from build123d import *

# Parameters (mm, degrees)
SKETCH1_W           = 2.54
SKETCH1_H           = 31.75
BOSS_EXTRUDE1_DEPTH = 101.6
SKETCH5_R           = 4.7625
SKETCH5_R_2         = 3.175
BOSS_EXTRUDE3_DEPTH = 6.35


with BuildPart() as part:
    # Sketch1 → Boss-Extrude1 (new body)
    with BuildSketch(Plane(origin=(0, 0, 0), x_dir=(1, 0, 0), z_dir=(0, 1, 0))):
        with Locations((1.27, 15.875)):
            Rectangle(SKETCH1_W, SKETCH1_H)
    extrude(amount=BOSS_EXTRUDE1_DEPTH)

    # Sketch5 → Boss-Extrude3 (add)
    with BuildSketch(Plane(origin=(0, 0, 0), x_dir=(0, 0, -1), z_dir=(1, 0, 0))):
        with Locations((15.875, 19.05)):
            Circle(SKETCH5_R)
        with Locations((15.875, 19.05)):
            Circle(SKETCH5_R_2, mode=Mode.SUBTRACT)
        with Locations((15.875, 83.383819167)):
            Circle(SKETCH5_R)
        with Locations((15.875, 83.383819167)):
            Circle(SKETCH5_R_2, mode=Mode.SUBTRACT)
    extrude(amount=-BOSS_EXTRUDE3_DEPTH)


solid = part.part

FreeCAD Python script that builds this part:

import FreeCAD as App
import Part
import Sketcher
from FreeCAD import Vector
Q = App.Units.Quantity


def add_polygon(sketch, points):
    """Adds a closed chain of lines whose ends are joined by coincident constraints."""
    first, n = sketch.GeometryCount, len(points)
    for a, b in zip(points, points[1:] + points[:1]):
        sketch.addGeometry(Part.LineSegment(App.Vector(*a, 0), App.Vector(*b, 0)), False)
    for i in range(n):
        sketch.addConstraint(Sketcher.Constraint("Coincident", first + i, 2, first + (i + 1) % n, 1))

doc = App.newDocument("Part")
params = doc.addObject("Spreadsheet::Sheet", "Params")
for row, (alias, value) in enumerate([
    ("sketch1_width", "0.1 in"),
    ("sketch1_height", "1.25 in"),
    ("pad1_length", "4 in"),
    ("sketch2_diameter", "0.25 in"),
    ("sketch2_diameter2", "0.375 in"),
    ("pad2_length", "0.25 in"),
], start=1):
    params.set(f"A{row}", alias)
    params.set(f"B{row}", "=" + value)
    params.setAlias(f"B{row}", alias)

body = doc.addObject("PartDesign::Body", "Body")

# Sketch on XZ plane
sketch1 = body.newObject("Sketcher::SketchObject", "Sketch")
sketch1.AttachmentSupport = (doc.getObject("XZ_Plane"), [""])
sketch1.MapMode = "FlatFace"
add_polygon(sketch1, [(0, -31.75), (0, 0), (2.54, 0), (2.54, -31.75)])  # lines 0-3
sketch1.addConstraint(Sketcher.Constraint("Vertical", 0))
sketch1.addConstraint(Sketcher.Constraint("Horizontal", 1))
sketch1.addConstraint(Sketcher.Constraint("Vertical", 2))
sketch1.addConstraint(Sketcher.Constraint("Horizontal", 3))
sketch1.addConstraint(Sketcher.Constraint("Coincident", 0, 2, -1, 1))
sketch1.addConstraint(Sketcher.Constraint("DistanceX", 1, 1, 1, 2, Q("0.1 in")))
sketch1.addConstraint(Sketcher.Constraint("DistanceY", 0, 1, 0, 2, Q("1.25 in")))
sketch1.setExpression("Constraints[9]", "Params.sketch1_width")
sketch1.setExpression("Constraints[10]", "Params.sketch1_height")
pad1 = body.newObject("PartDesign::Pad", "Pad")
pad1.Profile = sketch1
pad1.setExpression("Length", "Params.pad1_length")
pad1.Reversed = True

# Sketch on YZ plane
sketch2 = body.newObject("Sketcher::SketchObject", "Sketch001")
sketch2.AttachmentSupport = (doc.getObject("YZ_Plane"), [""])
sketch2.MapMode = "FlatFace"
sketch2.addGeometry(Part.Circle(Vector(19.05, -15.875, 0), Vector(0, 0, 1), 4.7625), False)
sketch2.addGeometry(Part.Circle(Vector(19.05, -15.875, 0), Vector(0, 0, 1), 3.175), False)
sketch2.addGeometry(Part.Circle(Vector(83.383819, -15.875, 0), Vector(0, 0, 1), 4.7625), False)
sketch2.addGeometry(Part.Circle(Vector(83.383819, -15.875, 0), Vector(0, 0, 1), 3.175), False)
sketch2.addConstraint(Sketcher.Constraint("Coincident", 1, 3, 0, 3))
sketch2.addConstraint(Sketcher.Constraint("Coincident", 3, 3, 2, 3))
sketch2.addConstraint(Sketcher.Constraint("Equal", 0, 2))
sketch2.addConstraint(Sketcher.Constraint("Equal", 1, 3))
sketch2.addConstraint(Sketcher.Constraint("Horizontal", 1, 3, 2, 3))
sketch2.addConstraint(Sketcher.Constraint("Diameter", 1, Q("0.25 in")))
sketch2.addConstraint(Sketcher.Constraint("Diameter", 0, Q("0.375 in")))
sketch2.addConstraint(Sketcher.Constraint("DistanceX", -1, 1, 0, 3, Q("0.75 in")))
sketch2.addConstraint(Sketcher.Constraint("DistanceY", 0, 3, -1, 1, Q("0.625 in")))
sketch2.addConstraint(Sketcher.Constraint("DistanceX", -1, 1, 2, 3, Q("83.383819 mm")))
sketch2.setExpression("Constraints[5]", "Params.sketch2_diameter")
sketch2.setExpression("Constraints[6]", "Params.sketch2_diameter2")
pad2 = body.newObject("PartDesign::Pad", "Pad001")
pad2.Profile = sketch2
pad2.setExpression("Length", "Params.pad2_length")
pad2.Reversed = True

doc.recompute()
